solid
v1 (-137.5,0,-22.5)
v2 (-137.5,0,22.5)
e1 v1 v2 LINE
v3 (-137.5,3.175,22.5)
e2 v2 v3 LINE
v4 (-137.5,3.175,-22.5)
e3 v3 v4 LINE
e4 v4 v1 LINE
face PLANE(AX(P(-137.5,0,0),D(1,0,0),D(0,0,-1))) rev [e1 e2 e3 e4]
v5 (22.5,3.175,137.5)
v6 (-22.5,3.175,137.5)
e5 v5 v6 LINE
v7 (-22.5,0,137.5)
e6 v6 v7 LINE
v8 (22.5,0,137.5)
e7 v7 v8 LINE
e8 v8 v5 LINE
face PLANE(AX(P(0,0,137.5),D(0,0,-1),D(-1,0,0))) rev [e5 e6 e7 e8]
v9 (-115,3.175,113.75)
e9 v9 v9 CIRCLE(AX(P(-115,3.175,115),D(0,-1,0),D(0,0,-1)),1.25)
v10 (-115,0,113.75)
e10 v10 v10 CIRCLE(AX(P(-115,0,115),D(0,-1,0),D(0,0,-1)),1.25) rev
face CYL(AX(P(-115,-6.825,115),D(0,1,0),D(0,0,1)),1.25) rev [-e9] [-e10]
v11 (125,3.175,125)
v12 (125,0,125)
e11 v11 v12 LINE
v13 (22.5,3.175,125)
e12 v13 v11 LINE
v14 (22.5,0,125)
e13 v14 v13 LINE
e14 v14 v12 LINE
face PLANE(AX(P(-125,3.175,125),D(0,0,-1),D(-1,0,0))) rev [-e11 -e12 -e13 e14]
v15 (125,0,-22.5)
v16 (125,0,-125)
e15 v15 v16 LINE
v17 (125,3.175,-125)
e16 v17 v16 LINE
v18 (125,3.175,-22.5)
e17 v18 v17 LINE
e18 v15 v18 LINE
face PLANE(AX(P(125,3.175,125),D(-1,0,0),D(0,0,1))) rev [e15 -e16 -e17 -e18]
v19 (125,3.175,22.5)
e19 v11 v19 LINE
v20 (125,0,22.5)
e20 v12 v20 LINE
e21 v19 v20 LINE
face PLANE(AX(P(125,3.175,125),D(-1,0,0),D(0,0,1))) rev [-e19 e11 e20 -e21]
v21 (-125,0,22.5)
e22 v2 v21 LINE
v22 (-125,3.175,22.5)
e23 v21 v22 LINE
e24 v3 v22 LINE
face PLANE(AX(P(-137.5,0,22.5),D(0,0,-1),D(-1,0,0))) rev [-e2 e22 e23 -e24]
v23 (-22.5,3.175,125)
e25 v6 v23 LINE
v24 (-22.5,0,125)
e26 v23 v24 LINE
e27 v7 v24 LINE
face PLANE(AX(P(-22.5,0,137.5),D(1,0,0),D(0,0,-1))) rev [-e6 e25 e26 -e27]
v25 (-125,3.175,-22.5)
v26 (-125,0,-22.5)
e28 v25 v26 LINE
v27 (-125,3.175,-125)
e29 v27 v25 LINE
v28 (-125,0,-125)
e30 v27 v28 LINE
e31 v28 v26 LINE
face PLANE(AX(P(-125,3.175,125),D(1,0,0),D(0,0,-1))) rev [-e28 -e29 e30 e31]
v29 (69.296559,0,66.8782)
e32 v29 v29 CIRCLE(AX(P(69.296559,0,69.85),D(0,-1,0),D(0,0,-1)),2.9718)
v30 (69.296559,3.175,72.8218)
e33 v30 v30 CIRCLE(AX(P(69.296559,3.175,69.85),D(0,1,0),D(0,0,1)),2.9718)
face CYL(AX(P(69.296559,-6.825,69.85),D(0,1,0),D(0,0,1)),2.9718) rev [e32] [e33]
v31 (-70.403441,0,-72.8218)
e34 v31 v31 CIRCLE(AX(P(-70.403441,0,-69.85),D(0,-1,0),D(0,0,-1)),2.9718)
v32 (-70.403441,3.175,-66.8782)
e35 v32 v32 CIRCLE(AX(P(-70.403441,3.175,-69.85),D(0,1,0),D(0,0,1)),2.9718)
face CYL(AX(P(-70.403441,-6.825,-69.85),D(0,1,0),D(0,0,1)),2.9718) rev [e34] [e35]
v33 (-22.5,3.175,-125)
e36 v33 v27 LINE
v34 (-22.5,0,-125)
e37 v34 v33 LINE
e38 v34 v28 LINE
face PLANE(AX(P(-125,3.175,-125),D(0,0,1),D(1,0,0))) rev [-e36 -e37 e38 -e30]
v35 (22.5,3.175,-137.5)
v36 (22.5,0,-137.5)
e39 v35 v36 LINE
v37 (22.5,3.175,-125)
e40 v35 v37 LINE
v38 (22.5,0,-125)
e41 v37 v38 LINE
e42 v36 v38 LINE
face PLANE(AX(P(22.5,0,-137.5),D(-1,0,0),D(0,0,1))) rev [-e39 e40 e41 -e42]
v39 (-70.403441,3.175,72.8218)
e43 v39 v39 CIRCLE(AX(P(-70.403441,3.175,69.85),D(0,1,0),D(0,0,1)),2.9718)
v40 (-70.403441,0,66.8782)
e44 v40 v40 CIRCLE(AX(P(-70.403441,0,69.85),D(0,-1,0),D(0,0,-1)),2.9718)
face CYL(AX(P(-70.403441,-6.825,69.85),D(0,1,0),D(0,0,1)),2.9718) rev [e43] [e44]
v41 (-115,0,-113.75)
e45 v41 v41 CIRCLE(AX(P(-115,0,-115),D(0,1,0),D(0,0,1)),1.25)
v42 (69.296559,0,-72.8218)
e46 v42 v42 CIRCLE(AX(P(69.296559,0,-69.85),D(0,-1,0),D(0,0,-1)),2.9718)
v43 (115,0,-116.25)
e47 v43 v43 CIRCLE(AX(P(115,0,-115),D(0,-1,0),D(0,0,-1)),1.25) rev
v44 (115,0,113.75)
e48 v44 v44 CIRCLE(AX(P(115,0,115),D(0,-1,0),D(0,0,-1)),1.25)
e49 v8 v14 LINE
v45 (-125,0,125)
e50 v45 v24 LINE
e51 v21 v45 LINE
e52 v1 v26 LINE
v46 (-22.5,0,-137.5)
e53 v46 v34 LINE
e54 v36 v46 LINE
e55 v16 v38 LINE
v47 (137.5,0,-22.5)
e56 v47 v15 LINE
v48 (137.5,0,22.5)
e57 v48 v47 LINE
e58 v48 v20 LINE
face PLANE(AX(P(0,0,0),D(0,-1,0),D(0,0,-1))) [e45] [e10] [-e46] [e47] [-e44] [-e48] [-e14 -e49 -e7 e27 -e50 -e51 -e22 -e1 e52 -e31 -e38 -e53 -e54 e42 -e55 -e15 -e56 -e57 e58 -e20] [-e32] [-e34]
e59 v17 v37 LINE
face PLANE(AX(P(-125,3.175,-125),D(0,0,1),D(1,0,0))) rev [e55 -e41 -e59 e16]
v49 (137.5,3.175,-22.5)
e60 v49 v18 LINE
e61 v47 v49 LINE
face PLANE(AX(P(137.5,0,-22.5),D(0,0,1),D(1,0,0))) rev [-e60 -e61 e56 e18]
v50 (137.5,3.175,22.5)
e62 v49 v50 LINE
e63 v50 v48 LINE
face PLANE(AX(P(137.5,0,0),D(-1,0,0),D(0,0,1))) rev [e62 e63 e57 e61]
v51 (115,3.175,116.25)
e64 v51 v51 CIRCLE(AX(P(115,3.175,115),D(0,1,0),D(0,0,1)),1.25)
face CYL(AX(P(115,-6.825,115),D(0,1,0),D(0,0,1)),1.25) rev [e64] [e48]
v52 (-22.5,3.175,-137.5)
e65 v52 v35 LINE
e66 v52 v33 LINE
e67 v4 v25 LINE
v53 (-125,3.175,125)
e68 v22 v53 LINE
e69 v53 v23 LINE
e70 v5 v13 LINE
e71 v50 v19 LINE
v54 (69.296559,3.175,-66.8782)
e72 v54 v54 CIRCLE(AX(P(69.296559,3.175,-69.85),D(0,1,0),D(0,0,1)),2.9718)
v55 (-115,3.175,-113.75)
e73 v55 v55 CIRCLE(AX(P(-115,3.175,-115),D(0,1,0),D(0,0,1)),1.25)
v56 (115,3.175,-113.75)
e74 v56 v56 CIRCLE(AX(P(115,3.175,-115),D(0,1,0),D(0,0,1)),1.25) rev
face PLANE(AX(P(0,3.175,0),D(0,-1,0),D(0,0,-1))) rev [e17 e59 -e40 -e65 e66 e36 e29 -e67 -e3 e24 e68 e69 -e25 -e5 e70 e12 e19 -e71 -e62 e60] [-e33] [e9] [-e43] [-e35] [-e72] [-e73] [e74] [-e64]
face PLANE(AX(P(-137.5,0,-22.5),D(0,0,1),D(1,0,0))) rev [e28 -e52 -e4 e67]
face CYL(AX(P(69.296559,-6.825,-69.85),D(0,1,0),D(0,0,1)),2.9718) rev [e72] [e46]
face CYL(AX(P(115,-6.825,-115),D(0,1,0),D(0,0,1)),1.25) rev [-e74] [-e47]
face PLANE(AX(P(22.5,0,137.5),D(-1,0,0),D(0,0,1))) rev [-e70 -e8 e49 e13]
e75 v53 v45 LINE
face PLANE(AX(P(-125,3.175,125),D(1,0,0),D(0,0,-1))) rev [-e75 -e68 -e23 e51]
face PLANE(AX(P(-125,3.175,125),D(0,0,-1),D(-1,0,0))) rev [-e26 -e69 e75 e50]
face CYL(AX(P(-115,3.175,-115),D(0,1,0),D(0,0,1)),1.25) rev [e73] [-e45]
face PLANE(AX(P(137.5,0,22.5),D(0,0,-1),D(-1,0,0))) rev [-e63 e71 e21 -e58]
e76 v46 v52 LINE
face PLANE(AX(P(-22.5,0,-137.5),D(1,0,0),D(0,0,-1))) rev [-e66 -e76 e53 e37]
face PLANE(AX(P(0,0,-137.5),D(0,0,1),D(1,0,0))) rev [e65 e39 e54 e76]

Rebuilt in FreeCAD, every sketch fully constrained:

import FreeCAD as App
import Part
import Sketcher


def add_polygon(sketch, points):
    """Adds a closed chain of lines whose ends are joined by coincident constraints."""
    first, n = sketch.GeometryCount, len(points)
    for a, b in zip(points, points[1:] + points[:1]):
        sketch.addGeometry(Part.LineSegment(App.Vector(*a, 0), App.Vector(*b, 0)), False)
    for i in range(n):
        sketch.addConstraint(Sketcher.Constraint("Coincident", first + i, 2, first + (i + 1) % n, 1))

doc = App.newDocument("Part")
body = doc.addObject("PartDesign::Body", "Body")

# Sketch on XZ plane
sketch1 = doc.addObject("Sketcher::SketchObject", "Sketch")
body.addObject(sketch1)
sketch1.AttachmentSupport = (doc.XZ_Plane, [""])
sketch1.MapMode = "FlatFace"
add_polygon(sketch1, [(-125, -125), (-125, 125), (125, 125), (125, -125)])  # lines 0-3
sketch1.addConstraint(Sketcher.Constraint("Vertical", 0))
sketch1.addConstraint(Sketcher.Constraint("Horizontal", 1))
sketch1.addConstraint(Sketcher.Constraint("Vertical", 2))
sketch1.addConstraint(Sketcher.Constraint("Horizontal", 3))
sketch1.addConstraint(Sketcher.Constraint("Symmetric", 0, 2, 2, 2, -1, 1))
sketch1.addConstraint(Sketcher.Constraint("Equal", 3, 0))
sketch1.addConstraint(Sketcher.Constraint("DistanceX", 1, 1, 1, 2, 250.0))
pad1 = doc.addObject("PartDesign::Pad", "Pad")
body.addObject(pad1)
pad1.Profile = sketch1
pad1.Length = 3.175
pad1.Reversed = True

# Sketch on XY plane
sketch2 = doc.addObject("Sketcher::SketchObject", "Sketch001")
body.addObject(sketch2)
sketch2.AttachmentSupport = (doc.XY_Plane, [""])
sketch2.MapMode = "FlatFace"
sketch2.AttachmentOffset = App.Placement(App.Vector(0, 0, -125), App.Rotation())
add_polygon(sketch2, [(22.5, 3.2), (22.5, 0), (-22.5, 0), (-22.5, 3.2)])  # lines 0-3
sketch2.addConstraint(Sketcher.Constraint("Vertical", 0))
sketch2.addConstraint(Sketcher.Constraint("Horizontal", 1))
sketch2.addConstraint(Sketcher.Constraint("Vertical", 2))
sketch2.addConstraint(Sketcher.Constraint("Horizontal", 3))
sketch2.addConstraint(Sketcher.Constraint("Symmetric", 0, 2, 1, 2, -1, 1))
sketch2.addConstraint(Sketcher.Constraint("DistanceX", 1, 2, 1, 1, 45.0))
sketch2.addConstraint(Sketcher.Constraint("DistanceY", 0, 2, 0, 1, 3.175))
pad2 = doc.addObject("PartDesign::Pad", "Pad001")
body.addObject(pad2)
pad2.Profile = sketch2
pad2.Length = 12.5
pad2.Reversed = True

# Sketch on YZ plane
sketch3 = doc.addObject("Sketcher::SketchObject", "Sketch002")
body.addObject(sketch3)
sketch3.AttachmentSupport = (doc.YZ_Plane, [""])
sketch3.MapMode = "FlatFace"
sketch3.AttachmentOffset = App.Placement(App.Vector(0, 0, -125), App.Rotation())
add_polygon(sketch3, [(3.2, -22.5), (0, -22.5), (0, 22.5), (3.2, 22.5)])  # lines 0-3
sketch3.addConstraint(Sketcher.Constraint("Horizontal", 0))
sketch3.addConstraint(Sketcher.Constraint("Vertical", 1))
sketch3.addConstraint(Sketcher.Constraint("Horizontal", 2))
sketch3.addConstraint(Sketcher.Constraint("Vertical", 3))
sketch3.addConstraint(Sketcher.Constraint("Symmetric", 0, 2, 1, 2, -1, 1))
sketch3.addConstraint(Sketcher.Constraint("DistanceY", 1, 1, 1, 2, 45.0))
sketch3.addConstraint(Sketcher.Constraint("DistanceX", 0, 2, 0, 1, 3.175))
pad3 = doc.addObject("PartDesign::Pad", "Pad002")
body.addObject(pad3)
pad3.Profile = sketch3
pad3.Length = 12.5
pad3.Reversed = True

# Sketch on XY plane
sketch4 = doc.addObject("Sketcher::SketchObject", "Sketch003")
body.addObject(sketch4)
sketch4.AttachmentSupport = (doc.XY_Plane, [""])
sketch4.MapMode = "FlatFace"
sketch4.AttachmentOffset = App.Placement(App.Vector(0, 0, 125), App.Rotation())
add_polygon(sketch4, [(-22.5, 3.2), (-22.5, 0), (22.5, 0), (22.5, 3.2)])  # lines 0-3
sketch4.addConstraint(Sketcher.Constraint("Vertical", 0))
sketch4.addConstraint(Sketcher.Constraint("Horizontal", 1))
sketch4.addConstraint(Sketcher.Constraint("Vertical", 2))
sketch4.addConstraint(Sketcher.Constraint("Horizontal", 3))
sketch4.addConstraint(Sketcher.Constraint("Symmetric", 0, 2, 1, 2, -1, 1))
sketch4.addConstraint(Sketcher.Constraint("DistanceX", 1, 1, 1, 2, 45.0))
sketch4.addConstraint(Sketcher.Constraint("DistanceY", 0, 2, 0, 1, 3.175))
pad4 = doc.addObject("PartDesign::Pad", "Pad003")
body.addObject(pad4)
pad4.Profile = sketch4
pad4.Length = 12.5

# Sketch on YZ plane
sketch5 = doc.addObject("Sketcher::SketchObject", "Sketch004")
body.addObject(sketch5)
sketch5.AttachmentSupport = (doc.YZ_Plane, [""])
sketch5.MapMode = "FlatFace"
sketch5.AttachmentOffset = App.Placement(App.Vector(0, 0, 125), App.Rotation())
add_polygon(sketch5, [(3.2, 22.5), (0, 22.5), (0, -22.5), (3.2, -22.5)])  # lines 0-3
sketch5.addConstraint(Sketcher.Constraint("Horizontal", 0))
sketch5.addConstraint(Sketcher.Constraint("Vertical", 1))
sketch5.addConstraint(Sketcher.Constraint("Horizontal", 2))
sketch5.addConstraint(Sketcher.Constraint("Vertical", 3))
sketch5.addConstraint(Sketcher.Constraint("Symmetric", 0, 2, 1, 2, -1, 1))
sketch5.addConstraint(Sketcher.Constraint("DistanceY", 1, 2, 1, 1, 45.0))
sketch5.addConstraint(Sketcher.Constraint("DistanceX", 0, 2, 0, 1, 3.175))
pad5 = doc.addObject("PartDesign::Pad", "Pad004")
body.addObject(pad5)
pad5.Profile = sketch5
pad5.Length = 12.5

# Sketch on XZ plane
sketch6 = doc.addObject("Sketcher::SketchObject", "Sketch005")
body.addObject(sketch6)
sketch6.AttachmentSupport = (doc.XZ_Plane, [""])
sketch6.MapMode = "FlatFace"
sketch6.AttachmentOffset = App.Placement(App.Vector(0, 0, -3.175), App.Rotation())
sketch6.addGeometry(Part.Circle(App.Vector(-115, -115, 0), App.Vector(0, 0, 1), 1.2), False)
sketch6.addConstraint(Sketcher.Constraint("Diameter", 0, 2.5))
sketch6.addConstraint(Sketcher.Constraint("DistanceX", 0, 3, -1, 1, 115.0))
sketch6.addConstraint(Sketcher.Constraint("DistanceY", 0, 3, -1, 1, 115.0))
doc.recompute()
hole = doc.addObject("PartDesign::Hole", "Hole")
body.addObject(hole)
hole.Profile = sketch6
hole.ThreadType = "None"
hole.Diameter = 2.5
hole.DepthType = "ThroughAll"
hole.Reversed = True

# Sketch on XZ plane
sketch7 = doc.addObject("Sketcher::SketchObject", "Sketch006")
body.addObject(sketch7)
sketch7.AttachmentSupport = (doc.XZ_Plane, [""])
sketch7.MapMode = "FlatFace"
sketch7.AttachmentOffset = App.Placement(App.Vector(0, 0, -3.175), App.Rotation())
sketch7.addGeometry(Part.Circle(App.Vector(115, -115, 0), App.Vector(0, 0, 1), 1.2), False)
sketch7.addGeometry(Part.Circle(App.Vector(115, 115, 0), App.Vector(0, 0, 1), 1.2), False)
sketch7.addGeometry(Part.Circle(App.Vector(-115, 115, 0), App.Vector(0, 0, 1), 1.2), False)
sketch7.addConstraint(Sketcher.Constraint("Equal", 0, 1))
sketch7.addConstraint(Sketcher.Constraint("Equal", 1, 2))
sketch7.addConstraint(Sketcher.Constraint("Symmetric", 0, 3, 2, 3, -1, 1))
sketch7.addConstraint(Sketcher.Constraint("Symmetric", 1, 3, 2, 3, -2))
sketch7.addConstraint(Sketcher.Constraint("Diameter", 0, 2.5))
sketch7.addConstraint(Sketcher.Constraint("DistanceX", -1, 1, 0, 3, 115.0))
sketch7.addConstraint(Sketcher.Constraint("DistanceY", 0, 3, -1, 1, 115.0))
pocket1 = doc.addObject("PartDesign::Pocket", "Pocket")
body.addObject(pocket1)
pocket1.Profile = sketch7
pocket1.Length = 10
pocket1.Reversed = True

# Sketch on XZ plane
sketch8 = doc.addObject("Sketcher::SketchObject", "Sketch007")
body.addObject(sketch8)
sketch8.AttachmentSupport = (doc.XZ_Plane, [""])
sketch8.MapMode = "FlatFace"
sketch8.AttachmentOffset = App.Placement(App.Vector(0, 0, -3.175), App.Rotation())
sketch8.addGeometry(Part.Circle(App.Vector(-70.4, 69.8, 0), App.Vector(0, 0, 1), 3), False)
sketch8.addGeometry(Part.Circle(App.Vector(-70.4, -69.8, 0), App.Vector(0, 0, 1), 3), False)
sketch8.addGeometry(Part.Circle(App.Vector(69.3, -69.8, 0), App.Vector(0, 0, 1), 3), False)
sketch8.addGeometry(Part.Circle(App.Vector(69.3, 69.8, 0), App.Vector(0, 0, 1), 3), False)
sketch8.addConstraint(Sketcher.Constraint("Equal", 0, 1))
sketch8.addConstraint(Sketcher.Constraint("Equal", 1, 2))
sketch8.addConstraint(Sketcher.Constraint("Equal", 2, 3))
sketch8.addConstraint(Sketcher.Constraint("Symmetric", 0, 3, 1, 3, -1))
sketch8.addConstraint(Sketcher.Constraint("Symmetric", 2, 3, 3, 3, -1))
sketch8.addConstraint(Sketcher.Constraint("Horizontal", 1, 3, 2, 3))
sketch8.addConstraint(Sketcher.Constraint("Diameter", 0, 5.9436))
sketch8.addConstraint(Sketcher.Constraint("DistanceY", 1, 3, 0, 3, 139.7))
sketch8.addConstraint(Sketcher.Constraint("DistanceX", 1, 3, 2, 3, 139.7))
sketch8.addConstraint(Sketcher.Constraint("DistanceX", 0, 3, -1, 1, 70.403441))
pocket2 = doc.addObject("PartDesign::Pocket", "Pocket001")
body.addObject(pocket2)
pocket2.Profile = sketch8
pocket2.Length = 10
pocket2.Reversed = True

doc.recompute()
